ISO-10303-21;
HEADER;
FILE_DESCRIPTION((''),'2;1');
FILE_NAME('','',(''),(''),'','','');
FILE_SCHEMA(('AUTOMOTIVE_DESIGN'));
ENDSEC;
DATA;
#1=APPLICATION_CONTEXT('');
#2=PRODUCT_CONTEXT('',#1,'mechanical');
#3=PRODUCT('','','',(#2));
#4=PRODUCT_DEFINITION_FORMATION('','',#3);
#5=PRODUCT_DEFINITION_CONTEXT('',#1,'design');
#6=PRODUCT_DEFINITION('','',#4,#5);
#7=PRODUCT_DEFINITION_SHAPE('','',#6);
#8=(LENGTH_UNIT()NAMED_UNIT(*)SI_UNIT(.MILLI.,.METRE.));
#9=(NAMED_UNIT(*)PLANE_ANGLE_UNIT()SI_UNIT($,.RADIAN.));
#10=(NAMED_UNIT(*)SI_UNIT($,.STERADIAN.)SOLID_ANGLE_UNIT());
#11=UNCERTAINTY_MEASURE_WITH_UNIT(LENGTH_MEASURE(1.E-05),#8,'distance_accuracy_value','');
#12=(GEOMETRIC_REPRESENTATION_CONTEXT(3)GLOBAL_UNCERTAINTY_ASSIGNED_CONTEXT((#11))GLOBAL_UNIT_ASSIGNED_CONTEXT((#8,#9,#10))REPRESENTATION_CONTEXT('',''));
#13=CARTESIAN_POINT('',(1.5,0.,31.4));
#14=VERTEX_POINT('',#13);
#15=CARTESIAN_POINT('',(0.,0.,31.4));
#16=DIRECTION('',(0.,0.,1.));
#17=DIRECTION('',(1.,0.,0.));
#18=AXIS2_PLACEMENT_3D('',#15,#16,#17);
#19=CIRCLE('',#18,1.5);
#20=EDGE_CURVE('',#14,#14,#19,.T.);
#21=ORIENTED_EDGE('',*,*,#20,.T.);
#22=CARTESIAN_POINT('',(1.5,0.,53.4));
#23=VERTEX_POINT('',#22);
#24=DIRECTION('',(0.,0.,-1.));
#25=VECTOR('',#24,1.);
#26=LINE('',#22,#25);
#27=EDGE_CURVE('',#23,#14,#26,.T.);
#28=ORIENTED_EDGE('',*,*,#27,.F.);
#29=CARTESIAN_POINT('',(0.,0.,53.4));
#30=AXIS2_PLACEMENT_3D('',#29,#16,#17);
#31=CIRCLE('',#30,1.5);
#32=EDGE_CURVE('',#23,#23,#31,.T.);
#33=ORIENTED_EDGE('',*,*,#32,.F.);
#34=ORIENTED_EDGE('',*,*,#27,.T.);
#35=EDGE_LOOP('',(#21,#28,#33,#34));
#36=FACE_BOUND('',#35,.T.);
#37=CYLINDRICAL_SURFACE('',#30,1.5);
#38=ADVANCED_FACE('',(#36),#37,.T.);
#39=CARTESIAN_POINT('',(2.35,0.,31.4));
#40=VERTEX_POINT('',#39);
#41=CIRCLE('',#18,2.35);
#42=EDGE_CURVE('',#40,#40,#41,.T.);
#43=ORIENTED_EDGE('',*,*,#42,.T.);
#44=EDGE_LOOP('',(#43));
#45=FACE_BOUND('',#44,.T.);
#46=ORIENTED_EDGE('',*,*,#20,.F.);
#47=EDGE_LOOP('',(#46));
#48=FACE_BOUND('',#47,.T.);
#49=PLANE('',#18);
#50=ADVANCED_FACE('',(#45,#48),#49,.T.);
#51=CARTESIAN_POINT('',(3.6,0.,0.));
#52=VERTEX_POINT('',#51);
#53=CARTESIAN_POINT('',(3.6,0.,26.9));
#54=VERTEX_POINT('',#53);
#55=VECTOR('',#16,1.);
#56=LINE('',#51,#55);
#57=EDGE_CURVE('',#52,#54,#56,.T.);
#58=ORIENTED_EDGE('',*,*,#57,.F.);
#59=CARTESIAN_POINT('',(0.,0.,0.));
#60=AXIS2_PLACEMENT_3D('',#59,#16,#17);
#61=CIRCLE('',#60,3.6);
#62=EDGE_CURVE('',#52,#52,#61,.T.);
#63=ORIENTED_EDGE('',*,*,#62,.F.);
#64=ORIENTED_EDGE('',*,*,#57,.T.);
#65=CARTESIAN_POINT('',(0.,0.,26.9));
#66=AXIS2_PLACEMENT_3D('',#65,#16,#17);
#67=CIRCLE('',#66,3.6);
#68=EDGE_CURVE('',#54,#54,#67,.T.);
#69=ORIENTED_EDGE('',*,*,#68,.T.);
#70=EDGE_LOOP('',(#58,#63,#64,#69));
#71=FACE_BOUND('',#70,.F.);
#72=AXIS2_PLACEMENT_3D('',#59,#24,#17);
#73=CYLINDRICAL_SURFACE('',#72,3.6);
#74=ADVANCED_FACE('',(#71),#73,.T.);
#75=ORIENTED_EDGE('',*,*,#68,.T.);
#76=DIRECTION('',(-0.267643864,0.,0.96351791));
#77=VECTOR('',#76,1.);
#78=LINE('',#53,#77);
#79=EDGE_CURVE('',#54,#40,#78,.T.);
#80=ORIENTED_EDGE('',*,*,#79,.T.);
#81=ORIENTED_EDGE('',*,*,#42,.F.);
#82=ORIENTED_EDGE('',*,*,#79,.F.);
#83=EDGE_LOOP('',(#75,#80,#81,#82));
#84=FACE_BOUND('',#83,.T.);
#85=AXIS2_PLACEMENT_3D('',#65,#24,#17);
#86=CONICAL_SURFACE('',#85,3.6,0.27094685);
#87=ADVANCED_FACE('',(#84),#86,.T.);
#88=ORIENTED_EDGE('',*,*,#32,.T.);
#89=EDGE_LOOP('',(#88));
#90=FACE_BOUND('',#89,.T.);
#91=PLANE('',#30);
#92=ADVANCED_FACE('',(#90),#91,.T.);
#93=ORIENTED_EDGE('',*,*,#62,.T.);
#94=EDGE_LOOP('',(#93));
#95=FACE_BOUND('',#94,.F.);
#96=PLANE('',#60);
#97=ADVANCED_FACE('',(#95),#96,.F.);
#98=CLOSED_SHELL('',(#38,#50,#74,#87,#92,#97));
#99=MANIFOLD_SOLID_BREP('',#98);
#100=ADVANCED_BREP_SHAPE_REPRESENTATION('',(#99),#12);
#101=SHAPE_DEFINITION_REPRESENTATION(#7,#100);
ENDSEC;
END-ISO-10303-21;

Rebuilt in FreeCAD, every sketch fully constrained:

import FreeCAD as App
import Part
import Sketcher


def edges_at(feature, points):
    """Names of the edges that pass closest to the given points."""
    edges = feature.Shape.Edges
    near = lambda p: min(range(len(edges)), key=lambda i: edges[i].distToShape(Part.Vertex(*p))[0])
    return sorted({f"Edge{near(p) + 1}" for p in points})

doc = App.newDocument("Part")
body = doc.addObject("PartDesign::Body", "Body")

# Sketch on XY plane
sketch1 = doc.addObject("Sketcher::SketchObject", "Sketch")
body.addObject(sketch1)
sketch1.AttachmentSupport = (doc.XY_Plane, [""])
sketch1.MapMode = "FlatFace"
sketch1.addGeometry(Part.Circle(App.Vector(0, 0, 0), App.Vector(0, 0, 1), 3.6), False)
sketch1.addConstraint([
    Sketcher.Constraint("Coincident", 0, 3, -1, 1),
    Sketcher.Constraint("Diameter", 0, 7.2),
])
pad1 = doc.addObject("PartDesign::Pad", "Pad")
body.addObject(pad1)
pad1.Profile = sketch1
pad1.Length = 53.4

# Sketch on XY plane
sketch2 = doc.addObject("Sketcher::SketchObject", "Sketch001")
body.addObject(sketch2)
sketch2.AttachmentSupport = (doc.XY_Plane, [""])
sketch2.MapMode = "FlatFace"
sketch2.AttachmentOffset = App.Placement(App.Vector(0, 0, 53.4), App.Rotation())
sketch2.addGeometry([
    Part.Circle(App.Vector(0, 0, 0), App.Vector(0, 0, 1), 3.6),
    Part.Circle(App.Vector(0, 0, 0), App.Vector(0, 0, 1), 1.5),
], False)
sketch2.addConstraint([
    Sketcher.Constraint("Coincident", 0, 3, -1, 1),
    Sketcher.Constraint("Coincident", 1, 3, -1, 1),
    Sketcher.Constraint("Diameter", 1, 3.0),
    Sketcher.Constraint("Diameter", 0, 7.2),
])
pocket1 = doc.addObject("PartDesign::Pocket", "Pocket")
body.addObject(pocket1)
pocket1.Profile = sketch2
pocket1.Length = 22
doc.recompute()

chamfer = doc.addObject("PartDesign::Chamfer", "Chamfer")
body.addObject(chamfer)
chamfer.Base = (pocket1, edges_at(pocket1, [(-3.6, 0, 31.4)]))
chamfer.ChamferType = "Two distances"
chamfer.Size = 4.5
chamfer.Size2 = 1.25

doc.recompute()
